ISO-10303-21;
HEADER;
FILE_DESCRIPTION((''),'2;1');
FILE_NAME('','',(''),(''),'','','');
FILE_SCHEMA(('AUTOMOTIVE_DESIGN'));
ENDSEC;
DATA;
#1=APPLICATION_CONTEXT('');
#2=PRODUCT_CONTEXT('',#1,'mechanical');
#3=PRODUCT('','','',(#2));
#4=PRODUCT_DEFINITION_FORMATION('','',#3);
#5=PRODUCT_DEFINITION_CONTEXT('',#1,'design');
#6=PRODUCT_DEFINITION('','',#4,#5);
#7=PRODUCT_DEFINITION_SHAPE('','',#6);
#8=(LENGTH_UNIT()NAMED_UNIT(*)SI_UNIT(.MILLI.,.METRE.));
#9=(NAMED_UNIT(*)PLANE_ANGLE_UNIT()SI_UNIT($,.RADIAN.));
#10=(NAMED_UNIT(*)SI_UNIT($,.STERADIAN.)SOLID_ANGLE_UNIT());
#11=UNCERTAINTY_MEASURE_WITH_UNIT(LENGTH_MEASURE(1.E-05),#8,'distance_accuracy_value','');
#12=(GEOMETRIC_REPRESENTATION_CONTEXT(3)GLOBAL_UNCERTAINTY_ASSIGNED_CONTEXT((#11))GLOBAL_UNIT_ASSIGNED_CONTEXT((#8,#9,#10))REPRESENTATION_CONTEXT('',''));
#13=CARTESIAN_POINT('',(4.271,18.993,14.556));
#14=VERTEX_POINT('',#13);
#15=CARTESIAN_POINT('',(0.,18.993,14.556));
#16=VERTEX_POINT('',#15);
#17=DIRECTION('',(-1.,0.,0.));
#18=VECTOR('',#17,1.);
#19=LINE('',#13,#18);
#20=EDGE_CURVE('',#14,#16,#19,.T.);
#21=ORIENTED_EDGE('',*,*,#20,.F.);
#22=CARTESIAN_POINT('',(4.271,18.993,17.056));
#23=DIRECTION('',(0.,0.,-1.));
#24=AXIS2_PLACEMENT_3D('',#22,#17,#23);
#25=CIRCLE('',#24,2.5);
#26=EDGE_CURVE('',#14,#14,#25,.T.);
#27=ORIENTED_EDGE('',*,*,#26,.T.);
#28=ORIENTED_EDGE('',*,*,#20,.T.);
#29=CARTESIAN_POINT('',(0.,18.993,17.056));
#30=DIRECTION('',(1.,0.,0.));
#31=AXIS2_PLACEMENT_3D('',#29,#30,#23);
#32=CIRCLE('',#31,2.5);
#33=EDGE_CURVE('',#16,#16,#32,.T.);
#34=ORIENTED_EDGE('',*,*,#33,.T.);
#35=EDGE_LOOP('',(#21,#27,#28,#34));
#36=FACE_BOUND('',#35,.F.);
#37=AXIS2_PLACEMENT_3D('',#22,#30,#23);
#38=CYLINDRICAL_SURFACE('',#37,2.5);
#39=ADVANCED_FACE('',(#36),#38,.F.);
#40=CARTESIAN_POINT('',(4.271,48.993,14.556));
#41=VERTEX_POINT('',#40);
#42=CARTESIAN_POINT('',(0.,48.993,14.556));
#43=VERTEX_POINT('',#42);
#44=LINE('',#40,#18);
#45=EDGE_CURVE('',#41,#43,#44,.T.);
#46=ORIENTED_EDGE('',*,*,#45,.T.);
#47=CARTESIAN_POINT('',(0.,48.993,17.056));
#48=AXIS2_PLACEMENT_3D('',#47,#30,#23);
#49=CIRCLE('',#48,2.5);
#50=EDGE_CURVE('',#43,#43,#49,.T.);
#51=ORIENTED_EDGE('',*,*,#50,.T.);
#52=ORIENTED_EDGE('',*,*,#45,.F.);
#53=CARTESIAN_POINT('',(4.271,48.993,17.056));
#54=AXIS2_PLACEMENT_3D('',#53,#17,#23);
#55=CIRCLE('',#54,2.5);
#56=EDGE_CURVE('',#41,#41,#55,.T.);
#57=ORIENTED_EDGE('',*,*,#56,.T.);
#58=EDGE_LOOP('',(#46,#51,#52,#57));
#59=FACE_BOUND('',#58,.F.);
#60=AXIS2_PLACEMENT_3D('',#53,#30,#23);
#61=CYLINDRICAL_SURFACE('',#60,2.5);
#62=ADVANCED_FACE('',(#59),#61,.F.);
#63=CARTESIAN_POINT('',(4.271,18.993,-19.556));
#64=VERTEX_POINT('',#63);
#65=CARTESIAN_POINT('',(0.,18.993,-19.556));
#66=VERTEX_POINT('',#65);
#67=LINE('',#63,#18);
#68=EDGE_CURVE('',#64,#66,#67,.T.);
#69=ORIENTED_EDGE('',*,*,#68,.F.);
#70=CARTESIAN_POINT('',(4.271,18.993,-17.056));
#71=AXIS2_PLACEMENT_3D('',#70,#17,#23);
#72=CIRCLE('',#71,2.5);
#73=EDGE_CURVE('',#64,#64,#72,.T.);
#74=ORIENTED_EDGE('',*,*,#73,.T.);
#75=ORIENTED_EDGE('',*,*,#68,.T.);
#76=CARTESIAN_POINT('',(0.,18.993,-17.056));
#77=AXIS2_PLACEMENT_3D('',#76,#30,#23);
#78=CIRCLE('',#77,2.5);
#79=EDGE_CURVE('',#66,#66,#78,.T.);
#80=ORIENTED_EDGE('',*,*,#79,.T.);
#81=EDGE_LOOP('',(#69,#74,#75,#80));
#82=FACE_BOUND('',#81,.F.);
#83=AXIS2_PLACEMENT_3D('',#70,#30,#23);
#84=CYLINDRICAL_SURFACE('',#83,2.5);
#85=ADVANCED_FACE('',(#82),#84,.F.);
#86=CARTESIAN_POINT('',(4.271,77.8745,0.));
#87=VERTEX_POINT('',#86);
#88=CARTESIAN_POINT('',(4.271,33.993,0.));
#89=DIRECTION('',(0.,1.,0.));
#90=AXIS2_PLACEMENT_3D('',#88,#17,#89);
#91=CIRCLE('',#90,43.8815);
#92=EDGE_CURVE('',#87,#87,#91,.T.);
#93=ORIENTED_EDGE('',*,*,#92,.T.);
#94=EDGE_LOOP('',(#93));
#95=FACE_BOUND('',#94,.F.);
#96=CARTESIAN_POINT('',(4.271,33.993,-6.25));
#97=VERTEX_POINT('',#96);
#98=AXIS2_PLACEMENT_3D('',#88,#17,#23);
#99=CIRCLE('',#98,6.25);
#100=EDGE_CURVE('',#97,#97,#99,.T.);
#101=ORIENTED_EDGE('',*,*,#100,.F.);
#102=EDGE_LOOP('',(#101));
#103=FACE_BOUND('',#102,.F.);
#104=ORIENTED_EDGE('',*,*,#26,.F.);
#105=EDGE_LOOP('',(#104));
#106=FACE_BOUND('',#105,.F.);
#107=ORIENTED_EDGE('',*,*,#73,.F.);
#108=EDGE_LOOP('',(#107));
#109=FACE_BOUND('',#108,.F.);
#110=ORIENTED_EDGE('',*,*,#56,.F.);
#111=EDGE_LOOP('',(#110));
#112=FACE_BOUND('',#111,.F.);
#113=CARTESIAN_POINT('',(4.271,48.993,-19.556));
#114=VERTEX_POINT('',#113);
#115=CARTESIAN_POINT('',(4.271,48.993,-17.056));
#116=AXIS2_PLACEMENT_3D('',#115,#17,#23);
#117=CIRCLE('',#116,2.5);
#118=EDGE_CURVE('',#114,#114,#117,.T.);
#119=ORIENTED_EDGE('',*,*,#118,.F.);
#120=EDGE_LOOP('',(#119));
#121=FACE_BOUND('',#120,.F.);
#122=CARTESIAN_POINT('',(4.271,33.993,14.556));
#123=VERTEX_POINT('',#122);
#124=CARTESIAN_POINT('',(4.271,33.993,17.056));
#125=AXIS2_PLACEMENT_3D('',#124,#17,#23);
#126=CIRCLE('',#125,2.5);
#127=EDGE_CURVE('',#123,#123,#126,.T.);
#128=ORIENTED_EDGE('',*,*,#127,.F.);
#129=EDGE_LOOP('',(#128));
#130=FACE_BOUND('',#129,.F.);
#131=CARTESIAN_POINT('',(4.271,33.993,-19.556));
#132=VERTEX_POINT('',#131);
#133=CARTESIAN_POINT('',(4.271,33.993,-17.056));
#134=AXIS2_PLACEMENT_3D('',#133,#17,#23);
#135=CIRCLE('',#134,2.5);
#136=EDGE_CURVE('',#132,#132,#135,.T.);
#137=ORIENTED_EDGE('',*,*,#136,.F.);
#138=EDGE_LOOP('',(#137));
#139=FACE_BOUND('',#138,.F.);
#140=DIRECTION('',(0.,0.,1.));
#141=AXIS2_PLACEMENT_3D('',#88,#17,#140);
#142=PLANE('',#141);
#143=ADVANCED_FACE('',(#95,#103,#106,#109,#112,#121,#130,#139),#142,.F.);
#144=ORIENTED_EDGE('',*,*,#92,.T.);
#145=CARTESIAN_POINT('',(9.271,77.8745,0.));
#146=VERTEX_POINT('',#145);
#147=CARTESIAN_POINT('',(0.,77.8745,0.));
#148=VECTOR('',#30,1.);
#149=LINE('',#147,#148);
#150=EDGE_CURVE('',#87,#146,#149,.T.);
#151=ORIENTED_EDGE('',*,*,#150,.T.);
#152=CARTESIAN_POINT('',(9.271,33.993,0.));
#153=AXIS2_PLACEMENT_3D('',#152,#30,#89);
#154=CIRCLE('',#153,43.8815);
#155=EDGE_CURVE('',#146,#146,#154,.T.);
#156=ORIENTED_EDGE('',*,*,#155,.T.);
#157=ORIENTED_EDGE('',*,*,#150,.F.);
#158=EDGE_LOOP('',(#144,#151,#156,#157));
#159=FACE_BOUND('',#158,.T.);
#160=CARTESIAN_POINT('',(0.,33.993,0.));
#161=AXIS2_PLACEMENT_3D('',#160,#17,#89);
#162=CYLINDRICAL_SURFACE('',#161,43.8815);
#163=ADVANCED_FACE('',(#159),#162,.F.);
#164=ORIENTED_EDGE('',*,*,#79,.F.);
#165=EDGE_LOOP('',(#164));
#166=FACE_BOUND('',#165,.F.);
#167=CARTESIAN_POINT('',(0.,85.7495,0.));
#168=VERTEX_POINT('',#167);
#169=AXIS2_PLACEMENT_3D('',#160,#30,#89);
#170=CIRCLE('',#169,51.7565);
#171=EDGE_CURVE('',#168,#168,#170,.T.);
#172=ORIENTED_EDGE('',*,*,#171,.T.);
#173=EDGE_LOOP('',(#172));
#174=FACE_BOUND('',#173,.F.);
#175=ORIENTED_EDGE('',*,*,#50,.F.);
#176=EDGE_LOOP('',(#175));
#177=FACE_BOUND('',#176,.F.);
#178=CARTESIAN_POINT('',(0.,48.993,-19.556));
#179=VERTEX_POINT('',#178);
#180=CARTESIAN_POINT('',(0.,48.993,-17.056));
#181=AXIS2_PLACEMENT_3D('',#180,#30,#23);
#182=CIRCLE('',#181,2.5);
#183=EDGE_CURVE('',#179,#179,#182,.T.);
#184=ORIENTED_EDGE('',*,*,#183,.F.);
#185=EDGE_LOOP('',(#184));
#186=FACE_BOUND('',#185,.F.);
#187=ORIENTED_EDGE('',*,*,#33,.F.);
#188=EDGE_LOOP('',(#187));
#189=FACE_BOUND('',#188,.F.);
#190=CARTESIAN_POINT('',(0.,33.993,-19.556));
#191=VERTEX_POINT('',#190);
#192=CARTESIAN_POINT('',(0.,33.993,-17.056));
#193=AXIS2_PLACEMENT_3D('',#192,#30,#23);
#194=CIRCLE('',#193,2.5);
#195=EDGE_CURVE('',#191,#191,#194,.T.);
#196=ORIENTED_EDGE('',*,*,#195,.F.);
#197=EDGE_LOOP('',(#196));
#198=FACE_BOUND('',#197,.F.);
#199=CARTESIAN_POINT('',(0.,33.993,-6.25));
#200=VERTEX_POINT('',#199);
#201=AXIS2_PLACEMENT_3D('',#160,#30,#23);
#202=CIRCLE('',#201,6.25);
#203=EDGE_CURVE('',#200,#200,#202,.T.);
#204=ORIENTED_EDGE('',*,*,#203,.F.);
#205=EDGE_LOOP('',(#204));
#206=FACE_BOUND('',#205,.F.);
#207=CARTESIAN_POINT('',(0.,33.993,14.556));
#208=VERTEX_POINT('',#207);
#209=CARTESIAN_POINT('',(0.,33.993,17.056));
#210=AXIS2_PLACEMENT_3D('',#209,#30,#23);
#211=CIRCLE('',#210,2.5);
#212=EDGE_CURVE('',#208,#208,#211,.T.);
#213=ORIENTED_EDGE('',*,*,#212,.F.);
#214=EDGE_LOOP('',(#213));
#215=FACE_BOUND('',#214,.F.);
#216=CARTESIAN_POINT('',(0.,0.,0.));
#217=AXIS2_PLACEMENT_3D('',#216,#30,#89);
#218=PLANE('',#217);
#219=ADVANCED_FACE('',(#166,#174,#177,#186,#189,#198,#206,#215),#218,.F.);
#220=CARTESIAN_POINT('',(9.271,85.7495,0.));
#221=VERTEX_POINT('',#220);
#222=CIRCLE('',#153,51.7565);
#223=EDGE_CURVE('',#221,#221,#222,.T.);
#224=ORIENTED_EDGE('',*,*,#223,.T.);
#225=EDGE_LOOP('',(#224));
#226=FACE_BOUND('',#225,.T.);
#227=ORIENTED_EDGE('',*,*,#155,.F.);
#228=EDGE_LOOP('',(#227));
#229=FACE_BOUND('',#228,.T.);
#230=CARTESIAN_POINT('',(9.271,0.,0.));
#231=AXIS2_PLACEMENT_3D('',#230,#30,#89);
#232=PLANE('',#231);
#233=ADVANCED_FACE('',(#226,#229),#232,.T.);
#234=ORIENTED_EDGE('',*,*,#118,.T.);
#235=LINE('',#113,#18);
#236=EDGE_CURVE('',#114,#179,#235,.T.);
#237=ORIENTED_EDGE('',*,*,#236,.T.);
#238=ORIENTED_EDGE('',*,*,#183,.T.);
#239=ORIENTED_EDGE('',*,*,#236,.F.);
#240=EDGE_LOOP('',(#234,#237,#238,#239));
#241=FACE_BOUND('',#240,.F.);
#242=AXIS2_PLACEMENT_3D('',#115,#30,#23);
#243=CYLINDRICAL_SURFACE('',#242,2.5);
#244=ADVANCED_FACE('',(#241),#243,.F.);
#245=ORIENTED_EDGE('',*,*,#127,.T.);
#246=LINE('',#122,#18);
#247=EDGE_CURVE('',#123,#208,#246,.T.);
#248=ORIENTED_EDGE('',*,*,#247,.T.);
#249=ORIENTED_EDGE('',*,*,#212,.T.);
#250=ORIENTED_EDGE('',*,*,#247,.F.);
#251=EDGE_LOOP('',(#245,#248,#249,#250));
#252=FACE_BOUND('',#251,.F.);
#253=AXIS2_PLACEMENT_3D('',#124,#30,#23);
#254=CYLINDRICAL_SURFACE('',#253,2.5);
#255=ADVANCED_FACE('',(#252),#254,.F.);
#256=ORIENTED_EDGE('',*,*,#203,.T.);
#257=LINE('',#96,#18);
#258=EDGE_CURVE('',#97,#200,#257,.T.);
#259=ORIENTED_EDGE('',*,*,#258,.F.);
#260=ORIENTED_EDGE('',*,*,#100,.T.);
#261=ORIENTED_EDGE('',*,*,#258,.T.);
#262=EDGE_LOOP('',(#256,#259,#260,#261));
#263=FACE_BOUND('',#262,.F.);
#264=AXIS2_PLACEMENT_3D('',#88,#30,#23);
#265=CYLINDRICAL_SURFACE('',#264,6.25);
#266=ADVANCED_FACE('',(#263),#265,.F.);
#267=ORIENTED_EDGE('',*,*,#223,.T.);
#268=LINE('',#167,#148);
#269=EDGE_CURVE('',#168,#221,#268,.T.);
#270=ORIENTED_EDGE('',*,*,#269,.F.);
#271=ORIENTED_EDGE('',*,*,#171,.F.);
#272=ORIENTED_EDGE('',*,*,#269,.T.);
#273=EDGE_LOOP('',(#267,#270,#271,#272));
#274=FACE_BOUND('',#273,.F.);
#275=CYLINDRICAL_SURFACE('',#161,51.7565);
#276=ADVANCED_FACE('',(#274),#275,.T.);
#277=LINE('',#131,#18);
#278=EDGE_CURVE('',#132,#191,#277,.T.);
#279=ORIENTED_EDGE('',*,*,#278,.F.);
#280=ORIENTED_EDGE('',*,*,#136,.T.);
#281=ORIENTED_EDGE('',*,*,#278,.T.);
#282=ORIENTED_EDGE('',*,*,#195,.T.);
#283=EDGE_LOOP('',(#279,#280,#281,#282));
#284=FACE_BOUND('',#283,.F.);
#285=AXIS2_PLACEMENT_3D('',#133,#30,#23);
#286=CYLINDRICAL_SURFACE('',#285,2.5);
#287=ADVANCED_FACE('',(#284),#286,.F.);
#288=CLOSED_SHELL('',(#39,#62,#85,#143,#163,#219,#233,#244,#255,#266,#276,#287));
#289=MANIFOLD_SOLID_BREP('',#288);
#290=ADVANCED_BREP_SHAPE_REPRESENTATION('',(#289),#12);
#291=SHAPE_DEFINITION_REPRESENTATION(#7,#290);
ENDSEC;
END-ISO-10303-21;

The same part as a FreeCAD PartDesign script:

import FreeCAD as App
import Part
import Sketcher
Q = App.Units.Quantity

doc = App.newDocument("Part")
params = doc.addObject("Spreadsheet::Sheet", "Params")
for row, (alias, value) in enumerate([
    ("pad1_length", "9.271 mm"),
    ("pad2_length", "4.271 mm"),
    ("sketch3_diameter", "5 mm"),
    ("sketch3_diameter2", "12.5 mm"),
    ("pocket1_length", "4.271 mm"),
], start=1):
    params.set(f"A{row}", alias)
    params.set(f"B{row}", "=" + value)
    params.setAlias(f"B{row}", alias)

body = doc.addObject("PartDesign::Body", "Body")

# Sketch on YZ plane
sketch1 = body.newObject("Sketcher::SketchObject", "Sketch")
sketch1.AttachmentSupport = (doc.getObject("YZ_Plane"), [""])
sketch1.MapMode = "FlatFace"
sketch1.addGeometry([
    Part.Circle(App.Vector(34, 0, 0), App.Vector(0, 0, 1), 52),
    Part.Circle(App.Vector(34, 0, 0), App.Vector(0, 0, 1), 44),
], False)
sketch1.addConstraint([
    Sketcher.Constraint("Coincident", 1, 3, 0, 3),
    Sketcher.Constraint("PointOnObject", 0, 3, -1),
    Sketcher.Constraint("Diameter", 0, Q("103.513 mm")),
    Sketcher.Constraint("Diameter", 1, Q("87.763 mm")),
    Sketcher.Constraint("DistanceX", -1, 1, 0, 3, Q("33.993 mm")),
])
pad1 = body.newObject("PartDesign::Pad", "Pad")
pad1.Profile = sketch1
pad1.setExpression("Length", "Params.pad1_length")

# Sketch on YZ plane
sketch2 = body.newObject("Sketcher::SketchObject", "Sketch001")
sketch2.AttachmentSupport = (doc.getObject("YZ_Plane"), [""])
sketch2.MapMode = "FlatFace"
sketch2.addGeometry(Part.Circle(App.Vector(34, 0, 0), App.Vector(0, 0, 1), 44), False)
sketch2.addConstraint([
    Sketcher.Constraint("PointOnObject", 0, 3, -1),
    Sketcher.Constraint("Diameter", 0, Q("87.763 mm")),
    Sketcher.Constraint("DistanceX", -1, 1, 0, 3, Q("33.993 mm")),
])
pad2 = body.newObject("PartDesign::Pad", "Pad001")
pad2.Profile = sketch2
pad2.setExpression("Length", "Params.pad2_length")

# Sketch on YZ plane
sketch3 = body.newObject("Sketcher::SketchObject", "Sketch002")
sketch3.AttachmentSupport = (doc.getObject("YZ_Plane"), [""])
sketch3.MapMode = "FlatFace"
sketch3.AttachmentOffset = App.Placement(App.Vector(0, 0, 4.271), App.Rotation())
sketch3.addGeometry([
    Part.Circle(App.Vector(34, 0, 0), App.Vector(0, 0, 1), 6.2),  # 0
    Part.Circle(App.Vector(49, -17.1, 0), App.Vector(0, 0, 1), 2.5),  # 1
    Part.Circle(App.Vector(19, -17.1, 0), App.Vector(0, 0, 1), 2.5),  # 2
    Part.Circle(App.Vector(34, -17.1, 0), App.Vector(0, 0, 1), 2.5),  # 3
    Part.Circle(App.Vector(19, 17.1, 0), App.Vector(0, 0, 1), 2.5),  # 4
    Part.Circle(App.Vector(49, 17.1, 0), App.Vector(0, 0, 1), 2.5),  # 5
    Part.Circle(App.Vector(34, 17.1, 0), App.Vector(0, 0, 1), 2.5),  # 6
], False)
sketch3.addConstraint([
    Sketcher.Constraint("Equal", 1, 2),
    Sketcher.Constraint("Equal", 2, 3),
    Sketcher.Constraint("Equal", 3, 4),
    Sketcher.Constraint("Equal", 4, 5),
    Sketcher.Constraint("Equal", 5, 6),
    Sketcher.Constraint("Symmetric", 2, 3, 4, 3, -1),
    Sketcher.Constraint("Symmetric", 1, 3, 5, 3, -1),
    Sketcher.Constraint("Symmetric", 3, 3, 6, 3, -1),
    Sketcher.Constraint("PointOnObject", 0, 3, -1),
    Sketcher.Constraint("Horizontal", 1, 3, 2, 3),
    Sketcher.Constraint("Horizontal", 2, 3, 3, 3),
    Sketcher.Constraint("Vertical", 0, 3, 3, 3),
    Sketcher.Constraint("Diameter", 1, Q("5 mm")),
    Sketcher.Constraint("Diameter", 0, Q("12.5 mm")),
    Sketcher.Constraint("DistanceX", 0, 3, 1, 3, Q("15 mm")),
    Sketcher.Constraint("DistanceX", 2, 3, 0, 3, Q("15 mm")),
    Sketcher.Constraint("DistanceY", 1, 3, -1, 1, Q("17.056 mm")),
    Sketcher.Constraint("DistanceX", -1, 1, 0, 3, Q("33.993 mm")),
])
sketch3.setExpression("Constraints[12]", "Params.sketch3_diameter")
sketch3.setExpression("Constraints[13]", "Params.sketch3_diameter2")
pocket1 = body.newObject("PartDesign::Pocket", "Pocket")
pocket1.Profile = sketch3
pocket1.setExpression("Length", "Params.pocket1_length")

doc.recompute()
